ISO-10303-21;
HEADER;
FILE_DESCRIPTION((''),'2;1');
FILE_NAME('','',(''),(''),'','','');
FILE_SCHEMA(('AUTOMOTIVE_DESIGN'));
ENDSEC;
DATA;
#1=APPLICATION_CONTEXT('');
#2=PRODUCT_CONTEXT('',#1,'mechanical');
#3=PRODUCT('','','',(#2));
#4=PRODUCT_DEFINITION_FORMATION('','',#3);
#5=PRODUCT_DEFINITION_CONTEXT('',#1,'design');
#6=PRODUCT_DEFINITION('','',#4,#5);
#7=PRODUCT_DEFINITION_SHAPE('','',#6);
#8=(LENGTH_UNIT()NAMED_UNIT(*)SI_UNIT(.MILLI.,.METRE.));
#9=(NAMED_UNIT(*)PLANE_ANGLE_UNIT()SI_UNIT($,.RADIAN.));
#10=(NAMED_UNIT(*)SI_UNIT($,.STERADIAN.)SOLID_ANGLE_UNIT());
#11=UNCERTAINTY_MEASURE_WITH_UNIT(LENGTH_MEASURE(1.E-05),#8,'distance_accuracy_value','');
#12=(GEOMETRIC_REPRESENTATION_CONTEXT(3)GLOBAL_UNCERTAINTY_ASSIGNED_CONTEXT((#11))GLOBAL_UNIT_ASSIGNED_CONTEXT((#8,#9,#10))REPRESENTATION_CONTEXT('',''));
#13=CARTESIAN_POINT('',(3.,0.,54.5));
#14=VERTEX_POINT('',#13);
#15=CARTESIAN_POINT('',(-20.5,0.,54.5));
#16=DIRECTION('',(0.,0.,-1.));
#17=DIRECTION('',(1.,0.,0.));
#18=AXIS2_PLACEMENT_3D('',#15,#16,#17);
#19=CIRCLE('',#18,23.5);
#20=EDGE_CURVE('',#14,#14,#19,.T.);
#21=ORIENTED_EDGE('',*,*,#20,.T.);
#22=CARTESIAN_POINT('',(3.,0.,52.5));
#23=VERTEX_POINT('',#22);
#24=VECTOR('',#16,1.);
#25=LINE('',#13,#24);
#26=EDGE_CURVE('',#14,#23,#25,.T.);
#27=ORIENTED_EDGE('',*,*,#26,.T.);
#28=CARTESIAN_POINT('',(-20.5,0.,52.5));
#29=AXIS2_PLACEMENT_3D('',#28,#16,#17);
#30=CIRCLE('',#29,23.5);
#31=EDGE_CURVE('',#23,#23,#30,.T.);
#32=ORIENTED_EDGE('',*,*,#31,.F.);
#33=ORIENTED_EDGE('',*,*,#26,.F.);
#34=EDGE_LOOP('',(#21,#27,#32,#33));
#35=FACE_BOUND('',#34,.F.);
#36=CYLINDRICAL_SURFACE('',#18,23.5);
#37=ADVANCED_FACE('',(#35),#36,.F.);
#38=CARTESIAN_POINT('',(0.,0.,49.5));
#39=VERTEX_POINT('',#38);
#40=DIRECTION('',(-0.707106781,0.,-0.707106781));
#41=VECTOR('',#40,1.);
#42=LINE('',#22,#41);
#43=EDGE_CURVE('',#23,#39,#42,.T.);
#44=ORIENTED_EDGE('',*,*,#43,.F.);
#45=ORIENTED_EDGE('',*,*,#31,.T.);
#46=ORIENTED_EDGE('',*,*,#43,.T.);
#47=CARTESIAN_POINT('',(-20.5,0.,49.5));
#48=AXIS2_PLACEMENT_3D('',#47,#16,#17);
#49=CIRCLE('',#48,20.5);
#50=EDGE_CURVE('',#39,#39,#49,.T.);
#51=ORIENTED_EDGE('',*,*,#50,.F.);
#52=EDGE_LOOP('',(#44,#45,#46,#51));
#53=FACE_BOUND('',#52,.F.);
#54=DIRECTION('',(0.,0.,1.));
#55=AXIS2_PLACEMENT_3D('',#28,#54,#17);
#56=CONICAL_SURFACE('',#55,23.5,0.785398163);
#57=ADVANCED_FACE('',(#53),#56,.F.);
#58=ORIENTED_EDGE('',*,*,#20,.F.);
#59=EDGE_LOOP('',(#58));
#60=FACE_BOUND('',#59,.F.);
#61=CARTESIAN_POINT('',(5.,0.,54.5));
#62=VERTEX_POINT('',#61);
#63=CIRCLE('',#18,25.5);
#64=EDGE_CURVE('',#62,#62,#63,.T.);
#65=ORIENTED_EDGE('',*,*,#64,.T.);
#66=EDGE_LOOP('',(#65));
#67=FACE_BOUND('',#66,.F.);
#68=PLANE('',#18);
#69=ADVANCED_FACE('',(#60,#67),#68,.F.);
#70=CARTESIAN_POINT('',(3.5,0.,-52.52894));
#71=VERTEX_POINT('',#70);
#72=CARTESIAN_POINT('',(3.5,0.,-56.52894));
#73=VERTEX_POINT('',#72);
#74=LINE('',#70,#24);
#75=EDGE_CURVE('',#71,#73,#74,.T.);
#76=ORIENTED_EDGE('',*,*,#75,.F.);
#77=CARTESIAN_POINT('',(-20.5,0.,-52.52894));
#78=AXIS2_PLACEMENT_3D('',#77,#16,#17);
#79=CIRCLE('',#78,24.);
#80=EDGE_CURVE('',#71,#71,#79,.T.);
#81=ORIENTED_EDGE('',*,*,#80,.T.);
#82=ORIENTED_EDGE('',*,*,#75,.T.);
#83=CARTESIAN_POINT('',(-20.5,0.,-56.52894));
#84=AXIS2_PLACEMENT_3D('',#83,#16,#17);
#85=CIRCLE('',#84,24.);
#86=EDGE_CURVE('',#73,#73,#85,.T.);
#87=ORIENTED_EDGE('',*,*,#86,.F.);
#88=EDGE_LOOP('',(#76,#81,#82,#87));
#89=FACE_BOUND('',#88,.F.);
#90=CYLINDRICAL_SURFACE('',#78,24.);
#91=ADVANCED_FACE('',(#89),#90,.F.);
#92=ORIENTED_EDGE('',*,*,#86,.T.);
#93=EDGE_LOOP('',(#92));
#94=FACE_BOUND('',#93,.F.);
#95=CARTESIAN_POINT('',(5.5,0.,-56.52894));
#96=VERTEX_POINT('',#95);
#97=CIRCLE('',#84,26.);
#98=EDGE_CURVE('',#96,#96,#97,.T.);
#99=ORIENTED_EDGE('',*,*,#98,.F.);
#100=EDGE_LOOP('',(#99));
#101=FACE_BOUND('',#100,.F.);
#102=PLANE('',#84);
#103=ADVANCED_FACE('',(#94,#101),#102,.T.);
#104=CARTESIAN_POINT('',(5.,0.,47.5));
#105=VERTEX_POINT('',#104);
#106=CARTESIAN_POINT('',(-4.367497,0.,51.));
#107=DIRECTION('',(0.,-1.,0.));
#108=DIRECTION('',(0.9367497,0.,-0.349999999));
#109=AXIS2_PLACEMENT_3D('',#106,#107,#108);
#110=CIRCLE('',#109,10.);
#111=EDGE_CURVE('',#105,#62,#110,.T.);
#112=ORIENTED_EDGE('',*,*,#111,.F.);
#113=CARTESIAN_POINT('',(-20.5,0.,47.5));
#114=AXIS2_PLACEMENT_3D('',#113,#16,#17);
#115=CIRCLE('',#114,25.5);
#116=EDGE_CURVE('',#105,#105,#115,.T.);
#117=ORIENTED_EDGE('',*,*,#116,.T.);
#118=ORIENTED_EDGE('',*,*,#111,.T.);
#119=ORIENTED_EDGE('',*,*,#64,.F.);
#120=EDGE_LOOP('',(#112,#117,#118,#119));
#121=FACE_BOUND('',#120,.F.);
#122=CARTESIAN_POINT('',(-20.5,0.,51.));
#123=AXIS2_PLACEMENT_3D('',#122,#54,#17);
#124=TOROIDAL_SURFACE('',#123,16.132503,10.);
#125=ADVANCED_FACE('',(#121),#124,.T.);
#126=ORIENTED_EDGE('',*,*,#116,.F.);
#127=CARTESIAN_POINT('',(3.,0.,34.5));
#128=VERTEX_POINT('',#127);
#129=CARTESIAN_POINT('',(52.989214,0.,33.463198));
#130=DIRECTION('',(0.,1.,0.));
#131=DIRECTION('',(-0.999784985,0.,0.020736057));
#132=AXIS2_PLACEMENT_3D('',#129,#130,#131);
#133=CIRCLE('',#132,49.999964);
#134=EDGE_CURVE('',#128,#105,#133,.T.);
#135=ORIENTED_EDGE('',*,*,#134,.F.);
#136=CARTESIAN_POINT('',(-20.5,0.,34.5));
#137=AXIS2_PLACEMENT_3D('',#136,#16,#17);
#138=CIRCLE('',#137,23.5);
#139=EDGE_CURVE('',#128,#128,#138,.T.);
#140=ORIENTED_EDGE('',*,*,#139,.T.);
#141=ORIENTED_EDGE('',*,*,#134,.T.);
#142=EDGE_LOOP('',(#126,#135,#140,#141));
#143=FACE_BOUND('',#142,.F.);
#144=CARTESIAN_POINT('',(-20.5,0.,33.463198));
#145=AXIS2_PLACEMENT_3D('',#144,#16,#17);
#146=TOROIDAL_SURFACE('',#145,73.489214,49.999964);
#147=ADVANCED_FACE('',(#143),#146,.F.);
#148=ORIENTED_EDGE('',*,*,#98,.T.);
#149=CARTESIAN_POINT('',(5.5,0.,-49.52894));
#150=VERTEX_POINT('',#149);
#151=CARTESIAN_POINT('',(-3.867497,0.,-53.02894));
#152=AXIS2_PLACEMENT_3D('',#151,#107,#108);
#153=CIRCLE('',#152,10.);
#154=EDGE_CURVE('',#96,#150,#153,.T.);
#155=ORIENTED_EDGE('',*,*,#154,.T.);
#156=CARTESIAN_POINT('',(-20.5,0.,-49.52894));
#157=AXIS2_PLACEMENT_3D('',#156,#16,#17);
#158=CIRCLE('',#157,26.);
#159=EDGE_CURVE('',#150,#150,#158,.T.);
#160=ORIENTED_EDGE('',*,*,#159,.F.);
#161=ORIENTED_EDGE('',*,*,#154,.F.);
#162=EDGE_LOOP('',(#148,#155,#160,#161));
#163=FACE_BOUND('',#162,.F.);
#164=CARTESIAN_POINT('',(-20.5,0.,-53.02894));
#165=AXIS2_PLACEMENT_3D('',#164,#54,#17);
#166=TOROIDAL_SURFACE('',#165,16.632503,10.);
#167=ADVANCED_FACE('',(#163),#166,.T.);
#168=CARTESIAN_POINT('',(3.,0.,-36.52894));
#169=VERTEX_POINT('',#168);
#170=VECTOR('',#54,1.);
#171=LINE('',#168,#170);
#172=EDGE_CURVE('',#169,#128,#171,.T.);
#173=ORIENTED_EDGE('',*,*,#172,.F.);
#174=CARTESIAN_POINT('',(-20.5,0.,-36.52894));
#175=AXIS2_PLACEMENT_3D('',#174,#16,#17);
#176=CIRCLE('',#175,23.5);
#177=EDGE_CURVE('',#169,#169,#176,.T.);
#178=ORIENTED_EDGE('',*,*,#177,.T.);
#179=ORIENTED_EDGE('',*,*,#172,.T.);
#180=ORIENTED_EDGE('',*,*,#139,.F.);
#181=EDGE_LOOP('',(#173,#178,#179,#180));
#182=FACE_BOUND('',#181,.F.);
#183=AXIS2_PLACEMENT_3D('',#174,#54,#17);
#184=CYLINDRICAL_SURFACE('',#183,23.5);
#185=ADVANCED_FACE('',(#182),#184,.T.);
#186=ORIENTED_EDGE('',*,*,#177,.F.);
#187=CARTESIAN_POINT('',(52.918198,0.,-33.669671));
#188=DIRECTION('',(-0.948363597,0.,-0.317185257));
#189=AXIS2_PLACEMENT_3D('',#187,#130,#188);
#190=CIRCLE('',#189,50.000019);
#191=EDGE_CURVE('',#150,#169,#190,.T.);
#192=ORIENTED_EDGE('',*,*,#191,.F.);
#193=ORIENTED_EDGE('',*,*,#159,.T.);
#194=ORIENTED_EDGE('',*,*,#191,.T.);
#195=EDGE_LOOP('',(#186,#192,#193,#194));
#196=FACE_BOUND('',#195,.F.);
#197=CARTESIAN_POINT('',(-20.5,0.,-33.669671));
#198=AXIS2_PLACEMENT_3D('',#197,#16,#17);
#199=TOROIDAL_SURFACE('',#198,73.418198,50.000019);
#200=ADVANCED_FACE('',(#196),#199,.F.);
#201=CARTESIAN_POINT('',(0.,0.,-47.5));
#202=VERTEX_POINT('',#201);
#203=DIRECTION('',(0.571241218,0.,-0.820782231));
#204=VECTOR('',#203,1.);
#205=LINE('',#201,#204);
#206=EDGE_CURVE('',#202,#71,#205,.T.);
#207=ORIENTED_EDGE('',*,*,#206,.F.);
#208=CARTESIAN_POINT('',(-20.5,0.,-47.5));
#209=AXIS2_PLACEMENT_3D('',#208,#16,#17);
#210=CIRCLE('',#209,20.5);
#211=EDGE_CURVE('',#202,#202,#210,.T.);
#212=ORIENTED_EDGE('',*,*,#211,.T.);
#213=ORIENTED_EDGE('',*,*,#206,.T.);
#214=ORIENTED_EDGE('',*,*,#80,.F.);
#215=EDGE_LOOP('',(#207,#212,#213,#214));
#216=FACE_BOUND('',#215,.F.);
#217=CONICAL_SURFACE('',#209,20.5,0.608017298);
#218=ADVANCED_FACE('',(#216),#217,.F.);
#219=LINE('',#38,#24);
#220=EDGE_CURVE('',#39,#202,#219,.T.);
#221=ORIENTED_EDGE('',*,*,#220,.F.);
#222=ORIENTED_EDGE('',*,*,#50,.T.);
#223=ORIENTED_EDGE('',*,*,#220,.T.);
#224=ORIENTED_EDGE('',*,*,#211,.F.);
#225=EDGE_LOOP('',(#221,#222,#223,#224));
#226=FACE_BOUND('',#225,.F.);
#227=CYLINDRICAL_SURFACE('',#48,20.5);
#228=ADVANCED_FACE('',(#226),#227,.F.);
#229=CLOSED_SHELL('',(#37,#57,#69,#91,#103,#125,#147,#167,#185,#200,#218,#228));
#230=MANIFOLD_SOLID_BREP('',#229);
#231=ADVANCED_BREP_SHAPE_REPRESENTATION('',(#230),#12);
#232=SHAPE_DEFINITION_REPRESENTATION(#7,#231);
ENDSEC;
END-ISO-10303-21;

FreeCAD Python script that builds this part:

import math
import FreeCAD as App
import Part
import Sketcher
from FreeCAD import Vector
Q = App.Units.Quantity

doc = App.newDocument("Part")
body = doc.addObject("PartDesign::Body", "Body")

# Sketch on XZ plane
sketch1 = doc.addObject("Sketcher::SketchObject", "Sketch")
body.addObject(sketch1)
sketch1.AttachmentSupport = (doc.XZ_Plane, [""])
sketch1.MapMode = "FlatFace"
sketch1.addGeometry([
    Part.LineSegment(Vector(0, 49.5, 0), Vector(0, -47.5, 0)),  # 0
    Part.LineSegment(Vector(0, -47.5, 0), Vector(3.5, -52.5, 0)),  # 1
    Part.LineSegment(Vector(3.5, -52.5, 0), Vector(3.5, -56.5, 0)),  # 2
    Part.LineSegment(Vector(3.5, -56.5, 0), Vector(5.5, -56.5, 0)),  # 3
    Part.ArcOfCircle(Part.Circle(Vector(-3.9, -53, 0), Vector(0, 0, 1), 10), math.radians(-20), math.radians(20)),  # 4
    Part.ArcOfCircle(Part.Circle(Vector(52.9, -33.7, 0), Vector(0, 0, 1), 50), math.radians(-176.72), math.radians(-161.51)),  # 5
    Part.LineSegment(Vector(3, -36.5, 0), Vector(3, 34.5, 0)),  # 6
    Part.ArcOfCircle(Part.Circle(Vector(53, 33.5, 0), Vector(0, 0, 1), 50), math.radians(163.7), math.radians(178.81)),  # 7
    Part.ArcOfCircle(Part.Circle(Vector(-4.4, 51, 0), Vector(0, 0, 1), 10), math.radians(-20), math.radians(20)),  # 8
    Part.LineSegment(Vector(5, 54.5, 0), Vector(3, 54.5, 0)),  # 9
    Part.LineSegment(Vector(3, 54.5, 0), Vector(3, 52.5, 0)),  # 10
    Part.LineSegment(Vector(3, 52.5, 0), Vector(0, 49.5, 0)),  # 11
], False)
sketch1.addGeometry(Part.LineSegment(Vector(-20.5, 54.5, 0), Vector(-20.5, -56.5, 0)), True)  # axis
sketch1.addConstraint([
    Sketcher.Constraint("Coincident", 0, 2, 1, 1),
    Sketcher.Constraint("Coincident", 1, 2, 2, 1),
    Sketcher.Constraint("Coincident", 2, 2, 3, 1),
    Sketcher.Constraint("Coincident", 3, 2, 4, 1),
    Sketcher.Constraint("Coincident", 4, 2, 5, 2),
    Sketcher.Constraint("Coincident", 5, 1, 6, 1),
    Sketcher.Constraint("Coincident", 6, 2, 7, 2),
    Sketcher.Constraint("Coincident", 7, 1, 8, 1),
    Sketcher.Constraint("Coincident", 8, 2, 9, 1),
    Sketcher.Constraint("Coincident", 9, 2, 10, 1),
    Sketcher.Constraint("Coincident", 10, 2, 11, 1),
    Sketcher.Constraint("Coincident", 11, 2, 0, 1),
    Sketcher.Constraint("Vertical", 0),
    Sketcher.Constraint("Vertical", 2),
    Sketcher.Constraint("Horizontal", 3),
    Sketcher.Constraint("Vertical", 6),
    Sketcher.Constraint("Horizontal", 9),
    Sketcher.Constraint("Vertical", 10),
    Sketcher.Constraint("Vertical", 12),
    Sketcher.Constraint("Equal", 4, 8),
    Sketcher.Constraint("PointOnObject", 0, 2, -2),
    Sketcher.Constraint("Horizontal", 9, 2, 12, 1),
    Sketcher.Constraint("Horizontal", 3, 2, 12, 2),
    Sketcher.Constraint("Vertical", 3, 2, 4, 2),
    Sketcher.Constraint("Vertical", 7, 1, 8, 2),
    Sketcher.Constraint("Vertical", 6, 2, 9, 2),
    Sketcher.Constraint("Equal", 3, 9),
    Sketcher.Constraint("Equal", 9, 10),
    Sketcher.Constraint("Radius", 4, 10.0),
    Sketcher.Constraint("DistanceX", 3, 1, 3, 2, 2.0),
    Sketcher.Constraint("DistanceY", 0, 2, 0, 1, 97.0),
    Sketcher.Constraint("DistanceY", 2, 2, 2, 1, 4.0),
    Sketcher.Constraint("Angle", 11, Q("-135 deg")),
    Sketcher.Constraint("DistanceY", -1, 1, 8, 3, 51.0),
    Sketcher.Constraint("DistanceX", -1, 1, 5, 1, 3.0),
    Sketcher.Constraint("DistanceY", 1, 2, 4, 2, 3.0),
    Sketcher.Constraint("DistanceY", 4, 2, 5, 1, 13.0),
    Sketcher.Constraint("DistanceY", 0, 2, 6, 2, 82.0),
    Sketcher.Constraint("DistanceY", 6, 2, 7, 1, 13.0),
    Sketcher.Constraint("DistanceX", 12, 2, 2, 2, 24.0),
    Sketcher.Constraint("DistanceX", -1, 1, 1, 2, 3.5),
    Sketcher.Constraint("Radius", 5, 50.000019),
    Sketcher.Constraint("Radius", 7, 49.999964),
    Sketcher.Constraint("DistanceY", 6, 1, 6, 2, 71.02894),
])
revolution = doc.addObject("PartDesign::Revolution", "Revolution")
body.addObject(revolution)
revolution.Profile = sketch1
revolution.ReferenceAxis = (sketch1, ["Axis0"])
revolution.Angle = 360

doc.recompute()
